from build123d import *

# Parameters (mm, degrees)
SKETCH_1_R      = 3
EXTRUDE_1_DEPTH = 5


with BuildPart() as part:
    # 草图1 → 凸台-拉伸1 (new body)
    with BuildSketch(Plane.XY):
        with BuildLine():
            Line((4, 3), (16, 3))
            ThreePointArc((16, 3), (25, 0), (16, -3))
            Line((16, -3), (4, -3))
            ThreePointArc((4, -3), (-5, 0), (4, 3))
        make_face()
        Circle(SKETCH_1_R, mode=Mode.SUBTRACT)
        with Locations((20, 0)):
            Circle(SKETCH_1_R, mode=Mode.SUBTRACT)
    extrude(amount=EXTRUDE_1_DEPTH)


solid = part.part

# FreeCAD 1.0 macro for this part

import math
import FreeCAD as App
import Part
import Sketcher
from FreeCAD import Vector
Q = App.Units.Quantity

doc = App.newDocument("Part")
body = doc.addObject("PartDesign::Body", "Body")

# Sketch on XY plane
sketch1 = doc.addObject("Sketcher::SketchObject", "Sketch")
body.addObject(sketch1)
sketch1.AttachmentSupport = (doc.XY_Plane, [""])
sketch1.MapMode = "FlatFace"
sketch1.addGeometry([
    Part.LineSegment(Vector(16, 3, 0), Vector(4, 3, 0)),  # 0
    Part.ArcOfCircle(Part.Circle(Vector(0, 0, 0), Vector(0, 0, 1), 5), math.radians(37), math.radians(323)),  # 1
    Part.LineSegment(Vector(4, -3, 0), Vector(16, -3, 0)),  # 2
    Part.ArcOfCircle(Part.Circle(Vector(20, 0, 0), Vector(0, 0, 1), 5), math.radians(-143), math.radians(143)),  # 3
    Part.Circle(Vector(20, 0, 0), Vector(0, 0, 1), 3),  # 4
    Part.Circle(Vector(0, 0, 0), Vector(0, 0, 1), 3),  # 5
], False)
sketch1.addConstraint([
    Sketcher.Constraint("Coincident", 0, 2, 1, 1),
    Sketcher.Constraint("Coincident", 1, 2, 2, 1),
    Sketcher.Constraint("Coincident", 2, 2, 3, 1),
    Sketcher.Constraint("Coincident", 3, 2, 0, 1),
    Sketcher.Constraint("Horizontal", 0),
    Sketcher.Constraint("Horizontal", 2),
    Sketcher.Constraint("Coincident", 1, 3, -1, 1),
    Sketcher.Constraint("Coincident", 5, 3, -1, 1),
    Sketcher.Constraint("Coincident", 4, 3, 3, 3),
    Sketcher.Constraint("Equal", 1, 3),
    Sketcher.Constraint("Equal", 4, 5),
    Sketcher.Constraint("Symmetric", 2, 2, 3, 2, -1),
    Sketcher.Constraint("Diameter", 4, Q("6 mm")),
    Sketcher.Constraint("Radius", 1, Q("5 mm")),
    Sketcher.Constraint("DistanceX", 0, 2, 0, 1, Q("12 mm")),
    Sketcher.Constraint("DistanceX", -1, 1, 3, 3, Q("20 mm")),
])
pad1 = doc.addObject("PartDesign::Pad", "Pad")
body.addObject(pad1)
pad1.Profile = sketch1
pad1.Length = 5

doc.recompute()
